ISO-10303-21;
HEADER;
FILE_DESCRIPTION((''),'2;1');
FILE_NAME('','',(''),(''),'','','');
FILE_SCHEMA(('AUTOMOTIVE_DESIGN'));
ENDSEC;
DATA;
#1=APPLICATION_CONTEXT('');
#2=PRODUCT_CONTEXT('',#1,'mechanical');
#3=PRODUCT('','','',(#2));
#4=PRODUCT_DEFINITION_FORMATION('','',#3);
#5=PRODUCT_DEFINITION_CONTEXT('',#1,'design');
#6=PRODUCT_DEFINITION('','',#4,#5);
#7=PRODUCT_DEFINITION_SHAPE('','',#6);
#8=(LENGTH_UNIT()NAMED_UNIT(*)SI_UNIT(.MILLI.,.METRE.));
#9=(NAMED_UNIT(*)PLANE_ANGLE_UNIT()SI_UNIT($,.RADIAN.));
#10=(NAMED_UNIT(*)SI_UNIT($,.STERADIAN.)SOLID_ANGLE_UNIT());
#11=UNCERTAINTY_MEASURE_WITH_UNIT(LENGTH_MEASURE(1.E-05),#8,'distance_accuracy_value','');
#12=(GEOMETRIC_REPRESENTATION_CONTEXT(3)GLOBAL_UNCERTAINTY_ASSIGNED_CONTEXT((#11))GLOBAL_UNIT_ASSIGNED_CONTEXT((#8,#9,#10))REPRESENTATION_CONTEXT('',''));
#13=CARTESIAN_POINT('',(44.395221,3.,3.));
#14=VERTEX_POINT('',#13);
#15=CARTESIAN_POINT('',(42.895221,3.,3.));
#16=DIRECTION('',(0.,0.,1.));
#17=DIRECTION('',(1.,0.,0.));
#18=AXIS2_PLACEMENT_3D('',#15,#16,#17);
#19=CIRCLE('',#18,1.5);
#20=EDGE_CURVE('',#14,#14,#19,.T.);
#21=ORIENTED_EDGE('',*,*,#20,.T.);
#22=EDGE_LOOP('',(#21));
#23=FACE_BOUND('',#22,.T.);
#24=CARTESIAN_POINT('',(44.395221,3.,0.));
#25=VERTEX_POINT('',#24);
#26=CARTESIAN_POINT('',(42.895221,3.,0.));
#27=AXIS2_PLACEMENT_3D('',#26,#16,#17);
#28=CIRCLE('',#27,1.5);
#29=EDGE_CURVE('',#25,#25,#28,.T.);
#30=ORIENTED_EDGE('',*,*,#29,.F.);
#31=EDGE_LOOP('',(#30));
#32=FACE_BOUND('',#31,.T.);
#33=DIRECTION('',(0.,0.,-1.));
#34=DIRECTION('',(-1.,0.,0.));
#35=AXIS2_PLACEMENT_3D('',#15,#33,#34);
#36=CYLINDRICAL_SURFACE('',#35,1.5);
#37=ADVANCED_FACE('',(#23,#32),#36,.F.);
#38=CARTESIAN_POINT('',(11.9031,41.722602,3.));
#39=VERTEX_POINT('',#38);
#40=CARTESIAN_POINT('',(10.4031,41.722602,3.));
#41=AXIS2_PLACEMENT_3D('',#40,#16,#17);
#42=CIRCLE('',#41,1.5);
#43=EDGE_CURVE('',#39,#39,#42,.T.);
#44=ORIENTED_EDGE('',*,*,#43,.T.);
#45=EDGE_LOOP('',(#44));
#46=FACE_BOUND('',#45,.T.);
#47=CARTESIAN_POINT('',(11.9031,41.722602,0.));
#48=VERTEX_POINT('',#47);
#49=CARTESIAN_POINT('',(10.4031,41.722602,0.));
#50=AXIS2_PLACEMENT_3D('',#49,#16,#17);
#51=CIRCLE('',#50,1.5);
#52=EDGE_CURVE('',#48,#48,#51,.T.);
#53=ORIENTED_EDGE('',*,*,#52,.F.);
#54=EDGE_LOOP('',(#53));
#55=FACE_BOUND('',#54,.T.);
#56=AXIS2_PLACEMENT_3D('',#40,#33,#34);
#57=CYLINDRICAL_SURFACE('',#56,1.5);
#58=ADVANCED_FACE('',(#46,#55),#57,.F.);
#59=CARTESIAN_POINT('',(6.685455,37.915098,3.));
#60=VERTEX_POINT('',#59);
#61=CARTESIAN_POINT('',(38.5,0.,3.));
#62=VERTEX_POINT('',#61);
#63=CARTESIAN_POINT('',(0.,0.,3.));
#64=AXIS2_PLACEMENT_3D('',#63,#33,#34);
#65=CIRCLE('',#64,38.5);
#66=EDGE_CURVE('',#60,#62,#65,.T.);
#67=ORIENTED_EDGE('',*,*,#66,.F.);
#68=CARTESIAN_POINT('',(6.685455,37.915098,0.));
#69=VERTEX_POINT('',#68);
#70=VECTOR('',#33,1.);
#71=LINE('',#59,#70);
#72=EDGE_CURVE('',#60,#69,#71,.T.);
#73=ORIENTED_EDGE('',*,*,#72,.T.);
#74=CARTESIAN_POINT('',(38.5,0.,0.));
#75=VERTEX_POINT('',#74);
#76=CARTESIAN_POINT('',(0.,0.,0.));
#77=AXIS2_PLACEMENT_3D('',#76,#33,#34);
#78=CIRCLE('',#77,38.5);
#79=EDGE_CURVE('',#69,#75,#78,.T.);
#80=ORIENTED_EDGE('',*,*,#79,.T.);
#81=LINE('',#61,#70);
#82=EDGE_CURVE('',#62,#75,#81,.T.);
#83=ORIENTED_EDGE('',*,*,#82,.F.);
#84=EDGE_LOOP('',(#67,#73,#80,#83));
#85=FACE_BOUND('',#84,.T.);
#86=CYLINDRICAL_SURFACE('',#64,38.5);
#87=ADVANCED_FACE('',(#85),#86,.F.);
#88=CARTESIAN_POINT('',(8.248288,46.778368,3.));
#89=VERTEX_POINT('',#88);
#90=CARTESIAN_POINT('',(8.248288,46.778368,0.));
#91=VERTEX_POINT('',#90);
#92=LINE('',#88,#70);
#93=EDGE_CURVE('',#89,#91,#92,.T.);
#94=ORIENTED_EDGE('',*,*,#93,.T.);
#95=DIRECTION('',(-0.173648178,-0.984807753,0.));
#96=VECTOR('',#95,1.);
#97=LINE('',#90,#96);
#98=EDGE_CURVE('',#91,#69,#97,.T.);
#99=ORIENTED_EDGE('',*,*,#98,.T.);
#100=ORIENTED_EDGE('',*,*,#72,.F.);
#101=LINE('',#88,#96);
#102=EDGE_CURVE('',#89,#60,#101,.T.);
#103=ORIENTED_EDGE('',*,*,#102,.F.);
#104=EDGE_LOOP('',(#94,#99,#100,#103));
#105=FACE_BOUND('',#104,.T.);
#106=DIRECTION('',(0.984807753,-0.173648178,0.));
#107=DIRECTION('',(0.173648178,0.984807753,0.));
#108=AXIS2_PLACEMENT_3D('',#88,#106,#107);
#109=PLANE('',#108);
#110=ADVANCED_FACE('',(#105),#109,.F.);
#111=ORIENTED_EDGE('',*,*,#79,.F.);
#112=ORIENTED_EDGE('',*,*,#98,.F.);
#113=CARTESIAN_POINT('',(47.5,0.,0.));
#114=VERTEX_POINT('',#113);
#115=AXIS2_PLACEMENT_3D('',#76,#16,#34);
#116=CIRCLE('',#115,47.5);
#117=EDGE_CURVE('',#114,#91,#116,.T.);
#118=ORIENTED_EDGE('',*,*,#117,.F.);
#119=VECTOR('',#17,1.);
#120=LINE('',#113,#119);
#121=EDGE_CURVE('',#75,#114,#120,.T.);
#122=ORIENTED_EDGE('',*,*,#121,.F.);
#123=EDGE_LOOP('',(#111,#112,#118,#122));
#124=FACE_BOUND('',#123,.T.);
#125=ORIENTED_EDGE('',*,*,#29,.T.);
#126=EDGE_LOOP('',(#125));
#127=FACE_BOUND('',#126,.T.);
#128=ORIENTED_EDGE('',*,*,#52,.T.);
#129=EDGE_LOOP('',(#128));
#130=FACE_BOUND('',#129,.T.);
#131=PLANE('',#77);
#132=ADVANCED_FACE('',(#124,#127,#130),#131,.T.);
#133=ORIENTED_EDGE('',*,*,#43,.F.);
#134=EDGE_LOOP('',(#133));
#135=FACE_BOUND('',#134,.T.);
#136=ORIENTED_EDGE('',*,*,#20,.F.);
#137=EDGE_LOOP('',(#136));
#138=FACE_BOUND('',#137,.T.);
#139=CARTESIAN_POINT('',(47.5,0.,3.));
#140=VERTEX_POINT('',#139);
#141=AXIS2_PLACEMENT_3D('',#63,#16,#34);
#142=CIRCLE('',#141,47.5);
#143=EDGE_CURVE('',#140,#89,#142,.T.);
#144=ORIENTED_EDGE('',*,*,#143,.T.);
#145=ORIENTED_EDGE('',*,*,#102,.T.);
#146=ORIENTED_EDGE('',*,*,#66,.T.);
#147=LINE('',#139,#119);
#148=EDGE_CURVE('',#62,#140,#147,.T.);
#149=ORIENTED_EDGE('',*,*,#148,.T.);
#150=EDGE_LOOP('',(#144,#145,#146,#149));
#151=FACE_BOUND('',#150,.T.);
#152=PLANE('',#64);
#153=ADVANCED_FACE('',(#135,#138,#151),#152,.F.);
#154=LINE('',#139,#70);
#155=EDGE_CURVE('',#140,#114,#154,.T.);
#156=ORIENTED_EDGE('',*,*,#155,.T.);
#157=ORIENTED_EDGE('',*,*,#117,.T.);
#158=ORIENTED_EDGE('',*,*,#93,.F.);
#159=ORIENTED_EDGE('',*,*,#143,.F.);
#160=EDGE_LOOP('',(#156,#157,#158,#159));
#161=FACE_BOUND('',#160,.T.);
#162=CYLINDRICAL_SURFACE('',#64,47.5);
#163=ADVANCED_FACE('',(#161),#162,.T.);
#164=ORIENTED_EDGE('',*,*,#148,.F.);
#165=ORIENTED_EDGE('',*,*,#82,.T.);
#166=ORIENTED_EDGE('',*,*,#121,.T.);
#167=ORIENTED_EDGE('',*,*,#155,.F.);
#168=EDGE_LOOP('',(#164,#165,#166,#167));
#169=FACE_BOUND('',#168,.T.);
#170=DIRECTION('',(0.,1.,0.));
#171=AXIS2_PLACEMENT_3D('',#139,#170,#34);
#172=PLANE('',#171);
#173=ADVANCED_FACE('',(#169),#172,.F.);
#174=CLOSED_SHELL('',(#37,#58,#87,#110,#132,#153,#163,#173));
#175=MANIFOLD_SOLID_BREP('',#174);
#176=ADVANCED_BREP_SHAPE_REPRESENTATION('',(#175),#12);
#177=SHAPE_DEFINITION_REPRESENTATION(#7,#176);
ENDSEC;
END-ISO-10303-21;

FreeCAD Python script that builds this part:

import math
import FreeCAD as App
import Part
import Sketcher
from FreeCAD import Vector
Q = App.Units.Quantity

doc = App.newDocument("Part")
params = doc.addObject("Spreadsheet::Sheet", "Params")
for row, (alias, value) in enumerate([
    ("sketch1_diameter", "3 mm"),
    ("sketch1_radius", "38.5 mm"),
    ("sketch1_radius2", "47.5 mm"),
    ("pad1_length", "3 mm"),
], start=1):
    params.set(f"A{row}", alias)
    params.set(f"B{row}", "=" + value)
    params.setAlias(f"B{row}", alias)

body = doc.addObject("PartDesign::Body", "Body")

sketch1 = doc.addObject("Sketcher::SketchObject", "Sketch")
body.addObject(sketch1)
sketch1.AttachmentSupport = (doc.XY_Plane, [""])
sketch1.MapMode = "FlatFace"
sketch1.addGeometry([
    Part.LineSegment(Vector(8.2, 46.8, 0), Vector(6.7, 37.9, 0)),
    Part.ArcOfCircle(Part.Circle(Vector(0, 0, 0), Vector(0, 0, 1), 38.5), math.radians(0), math.radians(80)),
    Part.LineSegment(Vector(38.5, 0, 0), Vector(47.5, 0, 0)),
    Part.ArcOfCircle(Part.Circle(Vector(0, 0, 0), Vector(0, 0, 1), 47.5), math.radians(0), math.radians(80)),
    Part.Circle(Vector(42.9, 3, 0), Vector(0, 0, 1), 1.5),
    Part.Circle(Vector(10.4, 41.7, 0), Vector(0, 0, 1), 1.5),
], False)
sketch1.addConstraint([
    Sketcher.Constraint("Coincident", 0, 2, 1, 2),
    Sketcher.Constraint("Coincident", 1, 1, 2, 1),
    Sketcher.Constraint("Coincident", 2, 2, 3, 1),
    Sketcher.Constraint("Coincident", 3, 2, 0, 1),
    Sketcher.Constraint("Horizontal", 2),
    Sketcher.Constraint("Coincident", 1, 3, -1, 1),
    Sketcher.Constraint("Coincident", 3, 3, -1, 1),
    Sketcher.Constraint("Equal", 4, 5),
    Sketcher.Constraint("PointOnObject", 1, 1, -1),
    Sketcher.Constraint("Diameter", 4, 3.0),
    Sketcher.Constraint("Radius", 1, 38.5),
    Sketcher.Constraint("Radius", 3, 47.5),
    Sketcher.Constraint("Angle", 0, Q("-100 deg")),
    Sketcher.Constraint("DistanceY", -1, 1, 4, 3, 3.0),
    Sketcher.Constraint("DistanceX", -1, 1, 5, 3, 10.4031),
    Sketcher.Constraint("DistanceY", -1, 1, 5, 3, 41.722602),
    Sketcher.Constraint("DistanceY", -1, 1, 0, 2, 37.915098),
    Sketcher.Constraint("DistanceX", -1, 1, 4, 3, 42.895221),
])
sketch1.setExpression("Constraints[9]", "Params.sketch1_diameter")
sketch1.setExpression("Constraints[10]", "Params.sketch1_radius")
sketch1.setExpression("Constraints[11]", "Params.sketch1_radius2")
pad1 = doc.addObject("PartDesign::Pad", "Pad")
body.addObject(pad1)
pad1.Profile = sketch1
pad1.setExpression("Length", "Params.pad1_length")

doc.recompute()
